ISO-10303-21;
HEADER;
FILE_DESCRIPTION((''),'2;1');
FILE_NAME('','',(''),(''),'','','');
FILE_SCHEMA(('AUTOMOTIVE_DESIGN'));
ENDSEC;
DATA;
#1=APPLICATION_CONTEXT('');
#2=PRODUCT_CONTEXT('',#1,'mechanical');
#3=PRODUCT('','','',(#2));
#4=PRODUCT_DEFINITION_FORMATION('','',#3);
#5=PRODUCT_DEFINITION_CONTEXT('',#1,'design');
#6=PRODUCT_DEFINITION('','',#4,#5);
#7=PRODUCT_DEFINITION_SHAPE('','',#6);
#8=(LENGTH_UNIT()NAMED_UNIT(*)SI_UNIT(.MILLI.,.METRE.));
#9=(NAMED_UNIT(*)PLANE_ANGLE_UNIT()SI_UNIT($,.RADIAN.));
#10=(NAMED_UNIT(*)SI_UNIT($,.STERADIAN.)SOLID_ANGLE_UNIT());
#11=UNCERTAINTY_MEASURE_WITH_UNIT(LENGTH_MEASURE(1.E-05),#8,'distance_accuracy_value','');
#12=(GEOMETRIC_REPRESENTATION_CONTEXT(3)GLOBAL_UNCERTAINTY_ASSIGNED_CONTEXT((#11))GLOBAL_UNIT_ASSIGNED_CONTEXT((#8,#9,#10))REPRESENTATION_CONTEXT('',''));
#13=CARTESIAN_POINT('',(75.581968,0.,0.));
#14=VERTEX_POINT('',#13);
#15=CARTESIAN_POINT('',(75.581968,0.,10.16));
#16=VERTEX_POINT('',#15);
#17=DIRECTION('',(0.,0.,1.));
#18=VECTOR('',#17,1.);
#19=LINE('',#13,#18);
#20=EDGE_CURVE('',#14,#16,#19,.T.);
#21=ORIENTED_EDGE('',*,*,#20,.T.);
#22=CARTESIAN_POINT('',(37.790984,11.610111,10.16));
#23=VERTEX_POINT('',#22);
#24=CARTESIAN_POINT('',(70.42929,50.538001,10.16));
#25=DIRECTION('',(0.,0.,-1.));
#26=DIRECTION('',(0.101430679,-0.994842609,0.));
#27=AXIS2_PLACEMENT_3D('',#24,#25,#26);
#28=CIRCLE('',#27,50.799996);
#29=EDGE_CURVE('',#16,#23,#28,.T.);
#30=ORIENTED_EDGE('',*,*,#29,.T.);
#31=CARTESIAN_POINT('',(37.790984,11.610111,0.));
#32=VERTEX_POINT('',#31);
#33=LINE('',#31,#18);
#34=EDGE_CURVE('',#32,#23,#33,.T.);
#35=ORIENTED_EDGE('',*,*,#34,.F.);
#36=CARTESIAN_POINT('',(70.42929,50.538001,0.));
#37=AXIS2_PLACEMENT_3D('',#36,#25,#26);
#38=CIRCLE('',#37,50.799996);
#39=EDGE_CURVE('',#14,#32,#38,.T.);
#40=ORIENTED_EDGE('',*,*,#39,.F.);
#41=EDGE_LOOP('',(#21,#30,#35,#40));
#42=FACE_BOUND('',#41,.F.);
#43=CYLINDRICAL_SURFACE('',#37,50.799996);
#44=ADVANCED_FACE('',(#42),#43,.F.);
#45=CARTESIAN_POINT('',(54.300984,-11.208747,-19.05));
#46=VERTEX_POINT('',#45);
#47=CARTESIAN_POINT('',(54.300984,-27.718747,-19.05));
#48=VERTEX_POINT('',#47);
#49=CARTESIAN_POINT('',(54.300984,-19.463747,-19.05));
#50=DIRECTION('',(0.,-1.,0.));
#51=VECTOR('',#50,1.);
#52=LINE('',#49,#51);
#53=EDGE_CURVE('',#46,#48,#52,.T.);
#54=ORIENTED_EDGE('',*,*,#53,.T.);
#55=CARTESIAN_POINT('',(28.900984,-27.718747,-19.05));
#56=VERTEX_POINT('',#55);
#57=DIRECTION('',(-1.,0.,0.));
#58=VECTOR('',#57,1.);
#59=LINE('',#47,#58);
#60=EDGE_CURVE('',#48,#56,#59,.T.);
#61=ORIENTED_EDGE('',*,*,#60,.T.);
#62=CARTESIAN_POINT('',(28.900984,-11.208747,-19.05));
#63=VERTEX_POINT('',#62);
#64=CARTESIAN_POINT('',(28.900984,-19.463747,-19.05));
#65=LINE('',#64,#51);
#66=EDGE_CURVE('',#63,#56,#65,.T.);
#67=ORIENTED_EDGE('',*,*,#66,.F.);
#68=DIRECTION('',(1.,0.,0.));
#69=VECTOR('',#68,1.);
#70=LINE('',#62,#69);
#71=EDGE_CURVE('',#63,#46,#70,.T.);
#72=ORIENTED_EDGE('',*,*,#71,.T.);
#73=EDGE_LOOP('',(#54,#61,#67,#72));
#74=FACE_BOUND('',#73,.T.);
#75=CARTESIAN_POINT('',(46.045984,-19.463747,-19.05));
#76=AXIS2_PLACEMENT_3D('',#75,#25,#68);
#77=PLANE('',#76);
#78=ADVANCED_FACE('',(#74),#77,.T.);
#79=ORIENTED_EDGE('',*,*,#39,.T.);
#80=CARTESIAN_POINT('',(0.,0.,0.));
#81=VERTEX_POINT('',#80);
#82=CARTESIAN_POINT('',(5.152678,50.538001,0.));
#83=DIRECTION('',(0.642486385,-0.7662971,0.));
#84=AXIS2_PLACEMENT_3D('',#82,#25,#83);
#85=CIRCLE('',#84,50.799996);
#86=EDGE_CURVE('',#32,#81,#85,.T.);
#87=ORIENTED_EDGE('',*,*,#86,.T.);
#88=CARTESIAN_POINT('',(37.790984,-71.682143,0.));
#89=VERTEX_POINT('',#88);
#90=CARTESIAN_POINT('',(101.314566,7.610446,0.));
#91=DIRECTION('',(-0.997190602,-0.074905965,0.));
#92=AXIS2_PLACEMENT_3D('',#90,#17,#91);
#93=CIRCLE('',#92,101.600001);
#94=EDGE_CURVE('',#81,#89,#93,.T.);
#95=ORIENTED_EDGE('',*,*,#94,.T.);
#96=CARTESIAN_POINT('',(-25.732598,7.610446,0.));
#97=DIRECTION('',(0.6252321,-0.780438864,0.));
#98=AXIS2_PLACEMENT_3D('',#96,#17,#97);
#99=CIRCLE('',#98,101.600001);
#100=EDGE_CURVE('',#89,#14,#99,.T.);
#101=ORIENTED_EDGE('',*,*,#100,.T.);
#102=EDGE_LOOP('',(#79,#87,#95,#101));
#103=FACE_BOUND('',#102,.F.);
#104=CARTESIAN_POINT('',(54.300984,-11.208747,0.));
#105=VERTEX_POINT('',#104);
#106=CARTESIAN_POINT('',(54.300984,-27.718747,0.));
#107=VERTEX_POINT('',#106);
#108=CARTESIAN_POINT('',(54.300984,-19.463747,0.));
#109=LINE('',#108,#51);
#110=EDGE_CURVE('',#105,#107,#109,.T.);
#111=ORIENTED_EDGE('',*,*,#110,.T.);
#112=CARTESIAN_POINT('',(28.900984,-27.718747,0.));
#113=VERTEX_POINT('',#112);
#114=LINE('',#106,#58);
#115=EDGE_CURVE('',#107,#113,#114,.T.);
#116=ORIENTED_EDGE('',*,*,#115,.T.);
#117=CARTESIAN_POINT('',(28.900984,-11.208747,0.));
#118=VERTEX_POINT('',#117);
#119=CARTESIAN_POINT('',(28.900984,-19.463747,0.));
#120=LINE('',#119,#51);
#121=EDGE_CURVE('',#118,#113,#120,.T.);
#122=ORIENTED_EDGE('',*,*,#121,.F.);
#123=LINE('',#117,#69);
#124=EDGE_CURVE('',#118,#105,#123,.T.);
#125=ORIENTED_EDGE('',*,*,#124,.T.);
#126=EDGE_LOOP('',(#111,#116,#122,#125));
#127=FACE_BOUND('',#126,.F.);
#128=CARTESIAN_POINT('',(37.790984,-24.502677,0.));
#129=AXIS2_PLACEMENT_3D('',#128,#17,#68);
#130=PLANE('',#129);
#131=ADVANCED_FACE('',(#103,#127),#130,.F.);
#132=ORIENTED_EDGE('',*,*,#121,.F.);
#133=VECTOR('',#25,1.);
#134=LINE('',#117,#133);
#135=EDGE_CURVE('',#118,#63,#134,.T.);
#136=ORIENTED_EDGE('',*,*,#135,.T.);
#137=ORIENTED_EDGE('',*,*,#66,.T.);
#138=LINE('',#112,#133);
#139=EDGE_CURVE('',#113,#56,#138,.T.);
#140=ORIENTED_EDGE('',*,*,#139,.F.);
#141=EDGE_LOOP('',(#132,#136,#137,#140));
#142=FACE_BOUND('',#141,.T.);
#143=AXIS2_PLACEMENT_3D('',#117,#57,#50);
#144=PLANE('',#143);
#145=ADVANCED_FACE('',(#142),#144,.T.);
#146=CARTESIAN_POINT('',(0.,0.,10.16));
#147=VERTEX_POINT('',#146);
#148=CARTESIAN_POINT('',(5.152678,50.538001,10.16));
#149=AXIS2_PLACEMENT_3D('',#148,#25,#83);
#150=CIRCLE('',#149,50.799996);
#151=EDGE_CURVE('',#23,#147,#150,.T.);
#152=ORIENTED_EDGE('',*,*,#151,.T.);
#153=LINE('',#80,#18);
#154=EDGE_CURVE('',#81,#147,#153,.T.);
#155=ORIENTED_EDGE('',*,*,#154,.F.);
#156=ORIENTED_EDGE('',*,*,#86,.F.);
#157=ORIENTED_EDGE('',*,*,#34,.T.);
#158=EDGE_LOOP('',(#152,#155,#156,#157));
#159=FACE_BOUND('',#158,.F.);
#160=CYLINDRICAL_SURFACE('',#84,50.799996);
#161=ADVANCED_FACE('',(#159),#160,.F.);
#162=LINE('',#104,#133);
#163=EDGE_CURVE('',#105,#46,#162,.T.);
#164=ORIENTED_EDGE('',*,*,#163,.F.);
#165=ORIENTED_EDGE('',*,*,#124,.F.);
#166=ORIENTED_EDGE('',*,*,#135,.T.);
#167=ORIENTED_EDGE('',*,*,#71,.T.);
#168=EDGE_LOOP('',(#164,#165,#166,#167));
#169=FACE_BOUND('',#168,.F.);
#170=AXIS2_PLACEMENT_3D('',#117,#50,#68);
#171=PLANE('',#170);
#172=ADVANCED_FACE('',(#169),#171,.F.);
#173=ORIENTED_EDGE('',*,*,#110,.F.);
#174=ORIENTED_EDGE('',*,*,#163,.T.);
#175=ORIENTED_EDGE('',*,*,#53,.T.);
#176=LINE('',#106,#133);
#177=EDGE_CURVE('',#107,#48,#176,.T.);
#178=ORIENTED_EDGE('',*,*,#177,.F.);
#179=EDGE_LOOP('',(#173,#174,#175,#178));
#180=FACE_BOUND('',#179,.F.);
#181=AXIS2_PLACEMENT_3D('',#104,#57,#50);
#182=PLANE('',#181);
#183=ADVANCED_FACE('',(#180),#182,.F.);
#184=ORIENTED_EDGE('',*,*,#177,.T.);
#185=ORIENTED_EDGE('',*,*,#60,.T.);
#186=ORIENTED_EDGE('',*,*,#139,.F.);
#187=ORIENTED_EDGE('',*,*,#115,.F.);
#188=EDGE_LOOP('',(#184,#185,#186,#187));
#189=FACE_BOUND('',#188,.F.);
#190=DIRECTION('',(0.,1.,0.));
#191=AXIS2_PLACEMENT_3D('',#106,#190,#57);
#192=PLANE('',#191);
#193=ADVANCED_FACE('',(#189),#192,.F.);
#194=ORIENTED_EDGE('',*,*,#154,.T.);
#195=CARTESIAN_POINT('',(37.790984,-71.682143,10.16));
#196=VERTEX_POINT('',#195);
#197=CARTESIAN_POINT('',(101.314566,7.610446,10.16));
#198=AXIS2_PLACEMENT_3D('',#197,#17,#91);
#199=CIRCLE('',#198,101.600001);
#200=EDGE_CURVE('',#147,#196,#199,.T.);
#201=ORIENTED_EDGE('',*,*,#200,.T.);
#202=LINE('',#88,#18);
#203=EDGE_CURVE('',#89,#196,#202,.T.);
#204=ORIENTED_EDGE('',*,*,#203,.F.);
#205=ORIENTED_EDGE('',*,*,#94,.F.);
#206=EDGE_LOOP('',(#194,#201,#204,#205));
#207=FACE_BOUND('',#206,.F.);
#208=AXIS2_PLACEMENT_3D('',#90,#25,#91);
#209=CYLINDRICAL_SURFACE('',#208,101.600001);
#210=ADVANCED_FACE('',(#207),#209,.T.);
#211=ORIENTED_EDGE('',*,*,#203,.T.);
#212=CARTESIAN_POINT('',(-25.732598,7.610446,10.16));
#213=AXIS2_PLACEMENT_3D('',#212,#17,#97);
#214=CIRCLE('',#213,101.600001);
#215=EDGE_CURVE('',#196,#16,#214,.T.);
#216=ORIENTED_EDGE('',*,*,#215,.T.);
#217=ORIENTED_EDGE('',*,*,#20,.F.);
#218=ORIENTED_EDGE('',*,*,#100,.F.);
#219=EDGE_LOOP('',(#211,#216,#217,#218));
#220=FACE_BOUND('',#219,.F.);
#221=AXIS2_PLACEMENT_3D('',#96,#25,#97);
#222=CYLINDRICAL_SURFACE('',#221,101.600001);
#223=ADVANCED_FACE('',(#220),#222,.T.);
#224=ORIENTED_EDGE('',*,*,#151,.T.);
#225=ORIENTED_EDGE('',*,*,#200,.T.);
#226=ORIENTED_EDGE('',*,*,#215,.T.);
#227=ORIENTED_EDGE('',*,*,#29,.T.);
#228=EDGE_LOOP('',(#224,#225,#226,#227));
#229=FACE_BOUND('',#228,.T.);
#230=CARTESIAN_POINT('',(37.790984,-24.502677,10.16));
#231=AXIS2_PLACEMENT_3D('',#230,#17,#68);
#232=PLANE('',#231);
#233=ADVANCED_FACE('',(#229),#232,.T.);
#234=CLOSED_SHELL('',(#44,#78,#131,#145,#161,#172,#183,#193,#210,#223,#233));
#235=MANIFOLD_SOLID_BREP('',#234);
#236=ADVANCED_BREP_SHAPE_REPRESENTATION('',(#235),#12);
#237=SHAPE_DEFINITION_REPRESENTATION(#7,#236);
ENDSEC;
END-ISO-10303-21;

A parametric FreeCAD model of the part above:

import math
import FreeCAD as App
import Part
import Sketcher

V = App.Vector
Q = App.Units.Quantity

doc = App.newDocument("Part")
params = doc.addObject("Spreadsheet::Sheet", "Params")
for row, (alias, value) in enumerate([
    ("sketch1_radius", "1.9999998 in"),
    ("sketch1_radius2", "4 in"),
    ("pad1_length", "0.4 in"),
    ("sketch2_width", "1 in"),
    ("sketch2_height", "0.65 in"),
    ("pad2_length", "0.75 in"),
], start=1):
    params.set(f"A{row}", alias)
    params.set(f"B{row}", "=" + value)
    params.setAlias(f"B{row}", alias)

body = doc.addObject("PartDesign::Body", "Body")

# Sketch on XY plane
sketch1 = body.newObject("Sketcher::SketchObject", "Sketch")
sketch1.AttachmentSupport = (doc.getObject("XY_Plane"), [""])
sketch1.MapMode = "FlatFace"
sketch1.addGeometry(Part.ArcOfCircle(Part.Circle(V(5, 51, 0), V(0, 0, 1), 51), math.radians(-96), math.radians(-50)), False)
sketch1.addGeometry(Part.ArcOfCircle(Part.Circle(V(101, 8, 0), V(0, 0, 1), 102), math.radians(-176), math.radians(-129)), False)
sketch1.addGeometry(Part.ArcOfCircle(Part.Circle(V(-26, 8, 0), V(0, 0, 1), 102), math.radians(-51), math.radians(-4)), False)
sketch1.addGeometry(Part.ArcOfCircle(Part.Circle(V(70, 51, 0), V(0, 0, 1), 51), math.radians(-130), math.radians(-84)), False)
sketch1.addConstraint(Sketcher.Constraint("Coincident", 0, 1, 1, 1))
sketch1.addConstraint(Sketcher.Constraint("Coincident", 1, 2, 2, 1))
sketch1.addConstraint(Sketcher.Constraint("Coincident", 2, 2, 3, 2))
sketch1.addConstraint(Sketcher.Constraint("Coincident", 3, 1, 0, 2))
sketch1.addConstraint(Sketcher.Constraint("Coincident", 0, 1, -1, 1))
sketch1.addConstraint(Sketcher.Constraint("Equal", 1, 2))
sketch1.addConstraint(Sketcher.Constraint("Equal", 0, 3))
sketch1.addConstraint(Sketcher.Constraint("PointOnObject", 2, 2, -1))
sketch1.addConstraint(Sketcher.Constraint("Horizontal", 1, 3, 2, 3))
sketch1.addConstraint(Sketcher.Constraint("Horizontal", 0, 3, 3, 3))
sketch1.addConstraint(Sketcher.Constraint("Radius", 0, Q("1.9999998 in")))
sketch1.addConstraint(Sketcher.Constraint("Radius", 1, Q("4 in")))
sketch1.addConstraint(Sketcher.Constraint("DistanceY", -1, 1, 0, 3, Q("50.538001 mm")))
sketch1.addConstraint(Sketcher.Constraint("DistanceX", -1, 1, 3, 3, Q("70.42929 mm")))
sketch1.addConstraint(Sketcher.Constraint("DistanceX", -1, 1, 1, 3, Q("101.314566 mm")))
sketch1.setExpression("Constraints[10]", "Params.sketch1_radius")
sketch1.setExpression("Constraints[11]", "Params.sketch1_radius2")
pad1 = body.newObject("PartDesign::Pad", "Pad")
pad1.Profile = sketch1
pad1.setExpression("Length", "Params.pad1_length")

# Sketch on XY plane
sketch2 = body.newObject("Sketcher::SketchObject", "Sketch001")
sketch2.AttachmentSupport = (doc.getObject("XY_Plane"), [""])
sketch2.MapMode = "FlatFace"
sketch2.addGeometry(Part.LineSegment(V(54, -11, 0), V(54, -28, 0)), False)
sketch2.addGeometry(Part.LineSegment(V(54, -28, 0), V(29, -28, 0)), False)
sketch2.addGeometry(Part.LineSegment(V(29, -28, 0), V(29, -11, 0)), False)
sketch2.addGeometry(Part.LineSegment(V(29, -11, 0), V(54, -11, 0)), False)
sketch2.addConstraint(Sketcher.Constraint("Coincident", 0, 2, 1, 1))
sketch2.addConstraint(Sketcher.Constraint("Coincident", 1, 2, 2, 1))
sketch2.addConstraint(Sketcher.Constraint("Coincident", 2, 2, 3, 1))
sketch2.addConstraint(Sketcher.Constraint("Coincident", 3, 2, 0, 1))
sketch2.addConstraint(Sketcher.Constraint("Vertical", 0))
sketch2.addConstraint(Sketcher.Constraint("Horizontal", 1))
sketch2.addConstraint(Sketcher.Constraint("Vertical", 2))
sketch2.addConstraint(Sketcher.Constraint("Horizontal", 3))
sketch2.addConstraint(Sketcher.Constraint("DistanceX", 1, 2, 1, 1, Q("1 in")))
sketch2.addConstraint(Sketcher.Constraint("DistanceY", 0, 2, 0, 1, Q("0.65 in")))
sketch2.addConstraint(Sketcher.Constraint("DistanceX", -1, 1, 0, 2, Q("54.300984 mm")))
sketch2.addConstraint(Sketcher.Constraint("DistanceY", 0, 2, -1, 1, Q("27.718747 mm")))
sketch2.setExpression("Constraints[8]", "Params.sketch2_width")
sketch2.setExpression("Constraints[9]", "Params.sketch2_height")
pad2 = body.newObject("PartDesign::Pad", "Pad001")
pad2.Profile = sketch2
pad2.setExpression("Length", "Params.pad2_length")
pad2.Reversed = True

doc.recompute()
